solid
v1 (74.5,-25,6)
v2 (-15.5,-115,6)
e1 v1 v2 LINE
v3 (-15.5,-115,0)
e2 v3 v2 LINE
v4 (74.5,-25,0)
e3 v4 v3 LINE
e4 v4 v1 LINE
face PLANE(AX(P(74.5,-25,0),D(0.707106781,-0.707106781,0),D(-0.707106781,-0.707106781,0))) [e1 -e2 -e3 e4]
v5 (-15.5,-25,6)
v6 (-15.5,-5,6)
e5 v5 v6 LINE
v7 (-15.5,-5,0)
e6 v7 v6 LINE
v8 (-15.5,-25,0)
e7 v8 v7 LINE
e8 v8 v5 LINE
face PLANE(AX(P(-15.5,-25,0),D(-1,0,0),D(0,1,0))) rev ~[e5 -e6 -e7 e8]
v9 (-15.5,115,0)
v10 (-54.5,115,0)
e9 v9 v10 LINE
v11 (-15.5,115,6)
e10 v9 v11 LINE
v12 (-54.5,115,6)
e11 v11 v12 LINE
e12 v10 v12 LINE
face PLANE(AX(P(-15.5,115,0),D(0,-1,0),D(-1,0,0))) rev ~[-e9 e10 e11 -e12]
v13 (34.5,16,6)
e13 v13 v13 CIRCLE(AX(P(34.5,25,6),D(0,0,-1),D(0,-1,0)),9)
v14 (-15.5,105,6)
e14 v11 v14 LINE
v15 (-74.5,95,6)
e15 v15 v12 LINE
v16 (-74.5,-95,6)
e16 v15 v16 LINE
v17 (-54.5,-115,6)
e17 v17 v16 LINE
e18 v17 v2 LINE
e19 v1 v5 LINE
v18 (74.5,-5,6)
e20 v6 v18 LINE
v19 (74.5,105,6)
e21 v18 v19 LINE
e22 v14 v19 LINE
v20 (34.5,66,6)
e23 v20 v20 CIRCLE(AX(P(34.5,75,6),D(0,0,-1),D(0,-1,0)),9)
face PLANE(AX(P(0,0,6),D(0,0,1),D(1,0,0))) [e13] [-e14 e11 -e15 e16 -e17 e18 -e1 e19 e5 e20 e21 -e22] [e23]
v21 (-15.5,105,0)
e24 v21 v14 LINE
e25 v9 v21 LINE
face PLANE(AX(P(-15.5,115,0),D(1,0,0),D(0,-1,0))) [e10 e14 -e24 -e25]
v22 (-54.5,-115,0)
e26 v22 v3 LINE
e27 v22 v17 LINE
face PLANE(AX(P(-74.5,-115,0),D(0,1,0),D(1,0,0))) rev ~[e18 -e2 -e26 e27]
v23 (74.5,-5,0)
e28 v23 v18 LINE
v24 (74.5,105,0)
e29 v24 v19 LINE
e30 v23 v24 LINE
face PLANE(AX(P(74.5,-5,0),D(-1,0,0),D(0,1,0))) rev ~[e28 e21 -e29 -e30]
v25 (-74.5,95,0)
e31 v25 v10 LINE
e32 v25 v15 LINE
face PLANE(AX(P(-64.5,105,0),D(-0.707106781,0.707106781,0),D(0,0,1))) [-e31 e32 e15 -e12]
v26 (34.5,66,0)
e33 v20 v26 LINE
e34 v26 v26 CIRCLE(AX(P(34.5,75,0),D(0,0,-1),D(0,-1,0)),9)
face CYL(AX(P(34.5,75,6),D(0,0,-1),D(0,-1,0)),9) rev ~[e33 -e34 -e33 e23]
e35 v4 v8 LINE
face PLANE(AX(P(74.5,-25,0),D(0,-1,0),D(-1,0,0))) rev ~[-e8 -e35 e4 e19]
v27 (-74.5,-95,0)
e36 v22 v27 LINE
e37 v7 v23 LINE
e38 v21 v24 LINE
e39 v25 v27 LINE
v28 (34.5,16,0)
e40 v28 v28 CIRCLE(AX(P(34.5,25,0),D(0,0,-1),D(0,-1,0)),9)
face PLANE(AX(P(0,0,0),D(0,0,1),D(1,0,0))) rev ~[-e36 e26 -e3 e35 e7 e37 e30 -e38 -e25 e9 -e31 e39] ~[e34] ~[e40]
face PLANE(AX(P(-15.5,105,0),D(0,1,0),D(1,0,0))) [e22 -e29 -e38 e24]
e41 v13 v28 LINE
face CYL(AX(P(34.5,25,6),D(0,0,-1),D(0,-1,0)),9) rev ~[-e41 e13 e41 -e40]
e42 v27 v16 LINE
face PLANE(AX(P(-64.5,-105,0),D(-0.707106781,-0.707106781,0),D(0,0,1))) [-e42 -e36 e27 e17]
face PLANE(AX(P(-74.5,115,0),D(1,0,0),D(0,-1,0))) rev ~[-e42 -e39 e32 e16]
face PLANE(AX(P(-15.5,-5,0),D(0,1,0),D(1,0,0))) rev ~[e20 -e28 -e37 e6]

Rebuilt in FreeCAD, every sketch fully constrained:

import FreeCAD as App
import Part
import Sketcher
Q = App.Units.Quantity


def edges_at(feature, points):
    """Names of the edges that pass closest to the given points."""
    edges = feature.Shape.Edges
    near = lambda p: min(range(len(edges)), key=lambda i: edges[i].distToShape(Part.Vertex(*p))[0])
    return sorted({f"Edge{near(p) + 1}" for p in points})


def add_polygon(sketch, points):
    """Adds a closed chain of lines whose ends are joined by coincident constraints."""
    first, n = sketch.GeometryCount, len(points)
    for a, b in zip(points, points[1:] + points[:1]):
        sketch.addGeometry(Part.LineSegment(App.Vector(*a, 0), App.Vector(*b, 0)), False)
    for i in range(n):
        sketch.addConstraint(Sketcher.Constraint("Coincident", first + i, 2, first + (i + 1) % n, 1))

doc = App.newDocument("Part")
body = doc.addObject("PartDesign::Body", "Body")

# Sketch on XY plane
sketch1 = body.newObject("Sketcher::SketchObject", "Sketch")
sketch1.AttachmentSupport = (doc.getObject("XY_Plane"), [""])
sketch1.MapMode = "FlatFace"
add_polygon(sketch1, [(-16, 105), (-16, 115), (-74, 115), (-74, -115), (-16, -115), (74, -25), (-16, -25), (-16, -5), (74, -5), (74, 105)])  # lines 0-9
sketch1.addConstraint(Sketcher.Constraint("Vertical", 0))
sketch1.addConstraint(Sketcher.Constraint("Horizontal", 1))
sketch1.addConstraint(Sketcher.Constraint("Vertical", 2))
sketch1.addConstraint(Sketcher.Constraint("Horizontal", 3))
sketch1.addConstraint(Sketcher.Constraint("Horizontal", 5))
sketch1.addConstraint(Sketcher.Constraint("Vertical", 6))
sketch1.addConstraint(Sketcher.Constraint("Horizontal", 7))
sketch1.addConstraint(Sketcher.Constraint("Vertical", 8))
sketch1.addConstraint(Sketcher.Constraint("Horizontal", 9))
sketch1.addConstraint(Sketcher.Constraint("Symmetric", 0, 2, 3, 2, -1))
sketch1.addConstraint(Sketcher.Constraint("Vertical", 3, 2, 5, 2))
sketch1.addConstraint(Sketcher.Constraint("Vertical", 4, 2, 7, 2))
sketch1.addConstraint(Sketcher.Constraint("DistanceX", 1, 2, 1, 1, Q("59 mm")))
sketch1.addConstraint(Sketcher.Constraint("DistanceX", 5, 2, 5, 1, Q("90 mm")))
sketch1.addConstraint(Sketcher.Constraint("DistanceY", 2, 2, 2, 1, Q("230 mm")))
sketch1.addConstraint(Sketcher.Constraint("DistanceY", 6, 1, 6, 2, Q("20 mm")))
sketch1.addConstraint(Sketcher.Constraint("DistanceY", 3, 2, 4, 2, Q("90 mm")))
sketch1.addConstraint(Sketcher.Constraint("DistanceY", 0, 1, 0, 2, Q("10 mm")))
sketch1.addConstraint(Sketcher.Constraint("DistanceX", 0, 2, -1, 1, Q("15.5 mm")))
pad1 = body.newObject("PartDesign::Pad", "Pad")
pad1.Profile = sketch1
pad1.Length = 6
doc.recompute()

chamfer = body.newObject("PartDesign::Chamfer", "Chamfer")
chamfer.Base = (pad1, edges_at(pad1, [(-74.5, -115, 3), (-74.5, 115, 3)]))
chamfer.Size = 20

# Sketch on XY plane
sketch2 = body.newObject("Sketcher::SketchObject", "Sketch001")
sketch2.AttachmentSupport = (doc.getObject("XY_Plane"), [""])
sketch2.MapMode = "FlatFace"
sketch2.AttachmentOffset = App.Placement(App.Vector(0, 0, 6), App.Rotation())
sketch2.addGeometry(Part.Circle(App.Vector(34, 25, 0), App.Vector(0, 0, 1), 9), False)
sketch2.addGeometry(Part.Circle(App.Vector(34, 75, 0), App.Vector(0, 0, 1), 9), False)
sketch2.addConstraint(Sketcher.Constraint("Equal", 0, 1))
sketch2.addConstraint(Sketcher.Constraint("Vertical", 0, 3, 1, 3))
sketch2.addConstraint(Sketcher.Constraint("Diameter", 0, Q("18 mm")))
sketch2.addConstraint(Sketcher.Constraint("DistanceY", -1, 1, 0, 3, Q("25 mm")))
sketch2.addConstraint(Sketcher.Constraint("DistanceY", -1, 1, 1, 3, Q("75 mm")))
sketch2.addConstraint(Sketcher.Constraint("DistanceX", -1, 1, 0, 3, Q("34.5 mm")))
doc.recompute()
hole = body.newObject("PartDesign::Hole", "Hole")
hole.Profile = sketch2
hole.ThreadType = "None"
hole.Diameter = 18
hole.DepthType = "ThroughAll"

doc.recompute()
